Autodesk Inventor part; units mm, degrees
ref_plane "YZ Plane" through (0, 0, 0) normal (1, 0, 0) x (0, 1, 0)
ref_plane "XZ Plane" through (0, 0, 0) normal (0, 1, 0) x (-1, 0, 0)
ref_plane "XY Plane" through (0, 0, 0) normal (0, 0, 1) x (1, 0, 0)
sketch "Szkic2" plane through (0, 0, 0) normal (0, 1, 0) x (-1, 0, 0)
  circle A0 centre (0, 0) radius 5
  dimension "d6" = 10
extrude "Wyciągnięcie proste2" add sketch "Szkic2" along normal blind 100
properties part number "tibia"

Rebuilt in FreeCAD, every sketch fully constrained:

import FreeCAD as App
import Part
import Sketcher
from FreeCAD import Vector
Q = App.Units.Quantity

doc = App.newDocument("Part")
body = doc.addObject("PartDesign::Body", "Body")

sketch1 = body.newObject("Sketcher::SketchObject", "Sketch")
sketch1.AttachmentSupport = (doc.getObject("XZ_Plane"), [""])
sketch1.MapMode = "FlatFace"
sketch1.addGeometry(Part.Circle(Vector(0, 0, 0), Vector(0, 0, 1), 5), False)
sketch1.addConstraint([
    Sketcher.Constraint("Coincident", 0, 3, -1, 1),
    Sketcher.Constraint("Diameter", 0, Q("0.3937 in")),
])
pad1 = body.newObject("PartDesign::Pad", "Pad")
pad1.Profile = sketch1
pad1.Length = Q("3.9370079 in")
pad1.Reversed = True

doc.recompute()
